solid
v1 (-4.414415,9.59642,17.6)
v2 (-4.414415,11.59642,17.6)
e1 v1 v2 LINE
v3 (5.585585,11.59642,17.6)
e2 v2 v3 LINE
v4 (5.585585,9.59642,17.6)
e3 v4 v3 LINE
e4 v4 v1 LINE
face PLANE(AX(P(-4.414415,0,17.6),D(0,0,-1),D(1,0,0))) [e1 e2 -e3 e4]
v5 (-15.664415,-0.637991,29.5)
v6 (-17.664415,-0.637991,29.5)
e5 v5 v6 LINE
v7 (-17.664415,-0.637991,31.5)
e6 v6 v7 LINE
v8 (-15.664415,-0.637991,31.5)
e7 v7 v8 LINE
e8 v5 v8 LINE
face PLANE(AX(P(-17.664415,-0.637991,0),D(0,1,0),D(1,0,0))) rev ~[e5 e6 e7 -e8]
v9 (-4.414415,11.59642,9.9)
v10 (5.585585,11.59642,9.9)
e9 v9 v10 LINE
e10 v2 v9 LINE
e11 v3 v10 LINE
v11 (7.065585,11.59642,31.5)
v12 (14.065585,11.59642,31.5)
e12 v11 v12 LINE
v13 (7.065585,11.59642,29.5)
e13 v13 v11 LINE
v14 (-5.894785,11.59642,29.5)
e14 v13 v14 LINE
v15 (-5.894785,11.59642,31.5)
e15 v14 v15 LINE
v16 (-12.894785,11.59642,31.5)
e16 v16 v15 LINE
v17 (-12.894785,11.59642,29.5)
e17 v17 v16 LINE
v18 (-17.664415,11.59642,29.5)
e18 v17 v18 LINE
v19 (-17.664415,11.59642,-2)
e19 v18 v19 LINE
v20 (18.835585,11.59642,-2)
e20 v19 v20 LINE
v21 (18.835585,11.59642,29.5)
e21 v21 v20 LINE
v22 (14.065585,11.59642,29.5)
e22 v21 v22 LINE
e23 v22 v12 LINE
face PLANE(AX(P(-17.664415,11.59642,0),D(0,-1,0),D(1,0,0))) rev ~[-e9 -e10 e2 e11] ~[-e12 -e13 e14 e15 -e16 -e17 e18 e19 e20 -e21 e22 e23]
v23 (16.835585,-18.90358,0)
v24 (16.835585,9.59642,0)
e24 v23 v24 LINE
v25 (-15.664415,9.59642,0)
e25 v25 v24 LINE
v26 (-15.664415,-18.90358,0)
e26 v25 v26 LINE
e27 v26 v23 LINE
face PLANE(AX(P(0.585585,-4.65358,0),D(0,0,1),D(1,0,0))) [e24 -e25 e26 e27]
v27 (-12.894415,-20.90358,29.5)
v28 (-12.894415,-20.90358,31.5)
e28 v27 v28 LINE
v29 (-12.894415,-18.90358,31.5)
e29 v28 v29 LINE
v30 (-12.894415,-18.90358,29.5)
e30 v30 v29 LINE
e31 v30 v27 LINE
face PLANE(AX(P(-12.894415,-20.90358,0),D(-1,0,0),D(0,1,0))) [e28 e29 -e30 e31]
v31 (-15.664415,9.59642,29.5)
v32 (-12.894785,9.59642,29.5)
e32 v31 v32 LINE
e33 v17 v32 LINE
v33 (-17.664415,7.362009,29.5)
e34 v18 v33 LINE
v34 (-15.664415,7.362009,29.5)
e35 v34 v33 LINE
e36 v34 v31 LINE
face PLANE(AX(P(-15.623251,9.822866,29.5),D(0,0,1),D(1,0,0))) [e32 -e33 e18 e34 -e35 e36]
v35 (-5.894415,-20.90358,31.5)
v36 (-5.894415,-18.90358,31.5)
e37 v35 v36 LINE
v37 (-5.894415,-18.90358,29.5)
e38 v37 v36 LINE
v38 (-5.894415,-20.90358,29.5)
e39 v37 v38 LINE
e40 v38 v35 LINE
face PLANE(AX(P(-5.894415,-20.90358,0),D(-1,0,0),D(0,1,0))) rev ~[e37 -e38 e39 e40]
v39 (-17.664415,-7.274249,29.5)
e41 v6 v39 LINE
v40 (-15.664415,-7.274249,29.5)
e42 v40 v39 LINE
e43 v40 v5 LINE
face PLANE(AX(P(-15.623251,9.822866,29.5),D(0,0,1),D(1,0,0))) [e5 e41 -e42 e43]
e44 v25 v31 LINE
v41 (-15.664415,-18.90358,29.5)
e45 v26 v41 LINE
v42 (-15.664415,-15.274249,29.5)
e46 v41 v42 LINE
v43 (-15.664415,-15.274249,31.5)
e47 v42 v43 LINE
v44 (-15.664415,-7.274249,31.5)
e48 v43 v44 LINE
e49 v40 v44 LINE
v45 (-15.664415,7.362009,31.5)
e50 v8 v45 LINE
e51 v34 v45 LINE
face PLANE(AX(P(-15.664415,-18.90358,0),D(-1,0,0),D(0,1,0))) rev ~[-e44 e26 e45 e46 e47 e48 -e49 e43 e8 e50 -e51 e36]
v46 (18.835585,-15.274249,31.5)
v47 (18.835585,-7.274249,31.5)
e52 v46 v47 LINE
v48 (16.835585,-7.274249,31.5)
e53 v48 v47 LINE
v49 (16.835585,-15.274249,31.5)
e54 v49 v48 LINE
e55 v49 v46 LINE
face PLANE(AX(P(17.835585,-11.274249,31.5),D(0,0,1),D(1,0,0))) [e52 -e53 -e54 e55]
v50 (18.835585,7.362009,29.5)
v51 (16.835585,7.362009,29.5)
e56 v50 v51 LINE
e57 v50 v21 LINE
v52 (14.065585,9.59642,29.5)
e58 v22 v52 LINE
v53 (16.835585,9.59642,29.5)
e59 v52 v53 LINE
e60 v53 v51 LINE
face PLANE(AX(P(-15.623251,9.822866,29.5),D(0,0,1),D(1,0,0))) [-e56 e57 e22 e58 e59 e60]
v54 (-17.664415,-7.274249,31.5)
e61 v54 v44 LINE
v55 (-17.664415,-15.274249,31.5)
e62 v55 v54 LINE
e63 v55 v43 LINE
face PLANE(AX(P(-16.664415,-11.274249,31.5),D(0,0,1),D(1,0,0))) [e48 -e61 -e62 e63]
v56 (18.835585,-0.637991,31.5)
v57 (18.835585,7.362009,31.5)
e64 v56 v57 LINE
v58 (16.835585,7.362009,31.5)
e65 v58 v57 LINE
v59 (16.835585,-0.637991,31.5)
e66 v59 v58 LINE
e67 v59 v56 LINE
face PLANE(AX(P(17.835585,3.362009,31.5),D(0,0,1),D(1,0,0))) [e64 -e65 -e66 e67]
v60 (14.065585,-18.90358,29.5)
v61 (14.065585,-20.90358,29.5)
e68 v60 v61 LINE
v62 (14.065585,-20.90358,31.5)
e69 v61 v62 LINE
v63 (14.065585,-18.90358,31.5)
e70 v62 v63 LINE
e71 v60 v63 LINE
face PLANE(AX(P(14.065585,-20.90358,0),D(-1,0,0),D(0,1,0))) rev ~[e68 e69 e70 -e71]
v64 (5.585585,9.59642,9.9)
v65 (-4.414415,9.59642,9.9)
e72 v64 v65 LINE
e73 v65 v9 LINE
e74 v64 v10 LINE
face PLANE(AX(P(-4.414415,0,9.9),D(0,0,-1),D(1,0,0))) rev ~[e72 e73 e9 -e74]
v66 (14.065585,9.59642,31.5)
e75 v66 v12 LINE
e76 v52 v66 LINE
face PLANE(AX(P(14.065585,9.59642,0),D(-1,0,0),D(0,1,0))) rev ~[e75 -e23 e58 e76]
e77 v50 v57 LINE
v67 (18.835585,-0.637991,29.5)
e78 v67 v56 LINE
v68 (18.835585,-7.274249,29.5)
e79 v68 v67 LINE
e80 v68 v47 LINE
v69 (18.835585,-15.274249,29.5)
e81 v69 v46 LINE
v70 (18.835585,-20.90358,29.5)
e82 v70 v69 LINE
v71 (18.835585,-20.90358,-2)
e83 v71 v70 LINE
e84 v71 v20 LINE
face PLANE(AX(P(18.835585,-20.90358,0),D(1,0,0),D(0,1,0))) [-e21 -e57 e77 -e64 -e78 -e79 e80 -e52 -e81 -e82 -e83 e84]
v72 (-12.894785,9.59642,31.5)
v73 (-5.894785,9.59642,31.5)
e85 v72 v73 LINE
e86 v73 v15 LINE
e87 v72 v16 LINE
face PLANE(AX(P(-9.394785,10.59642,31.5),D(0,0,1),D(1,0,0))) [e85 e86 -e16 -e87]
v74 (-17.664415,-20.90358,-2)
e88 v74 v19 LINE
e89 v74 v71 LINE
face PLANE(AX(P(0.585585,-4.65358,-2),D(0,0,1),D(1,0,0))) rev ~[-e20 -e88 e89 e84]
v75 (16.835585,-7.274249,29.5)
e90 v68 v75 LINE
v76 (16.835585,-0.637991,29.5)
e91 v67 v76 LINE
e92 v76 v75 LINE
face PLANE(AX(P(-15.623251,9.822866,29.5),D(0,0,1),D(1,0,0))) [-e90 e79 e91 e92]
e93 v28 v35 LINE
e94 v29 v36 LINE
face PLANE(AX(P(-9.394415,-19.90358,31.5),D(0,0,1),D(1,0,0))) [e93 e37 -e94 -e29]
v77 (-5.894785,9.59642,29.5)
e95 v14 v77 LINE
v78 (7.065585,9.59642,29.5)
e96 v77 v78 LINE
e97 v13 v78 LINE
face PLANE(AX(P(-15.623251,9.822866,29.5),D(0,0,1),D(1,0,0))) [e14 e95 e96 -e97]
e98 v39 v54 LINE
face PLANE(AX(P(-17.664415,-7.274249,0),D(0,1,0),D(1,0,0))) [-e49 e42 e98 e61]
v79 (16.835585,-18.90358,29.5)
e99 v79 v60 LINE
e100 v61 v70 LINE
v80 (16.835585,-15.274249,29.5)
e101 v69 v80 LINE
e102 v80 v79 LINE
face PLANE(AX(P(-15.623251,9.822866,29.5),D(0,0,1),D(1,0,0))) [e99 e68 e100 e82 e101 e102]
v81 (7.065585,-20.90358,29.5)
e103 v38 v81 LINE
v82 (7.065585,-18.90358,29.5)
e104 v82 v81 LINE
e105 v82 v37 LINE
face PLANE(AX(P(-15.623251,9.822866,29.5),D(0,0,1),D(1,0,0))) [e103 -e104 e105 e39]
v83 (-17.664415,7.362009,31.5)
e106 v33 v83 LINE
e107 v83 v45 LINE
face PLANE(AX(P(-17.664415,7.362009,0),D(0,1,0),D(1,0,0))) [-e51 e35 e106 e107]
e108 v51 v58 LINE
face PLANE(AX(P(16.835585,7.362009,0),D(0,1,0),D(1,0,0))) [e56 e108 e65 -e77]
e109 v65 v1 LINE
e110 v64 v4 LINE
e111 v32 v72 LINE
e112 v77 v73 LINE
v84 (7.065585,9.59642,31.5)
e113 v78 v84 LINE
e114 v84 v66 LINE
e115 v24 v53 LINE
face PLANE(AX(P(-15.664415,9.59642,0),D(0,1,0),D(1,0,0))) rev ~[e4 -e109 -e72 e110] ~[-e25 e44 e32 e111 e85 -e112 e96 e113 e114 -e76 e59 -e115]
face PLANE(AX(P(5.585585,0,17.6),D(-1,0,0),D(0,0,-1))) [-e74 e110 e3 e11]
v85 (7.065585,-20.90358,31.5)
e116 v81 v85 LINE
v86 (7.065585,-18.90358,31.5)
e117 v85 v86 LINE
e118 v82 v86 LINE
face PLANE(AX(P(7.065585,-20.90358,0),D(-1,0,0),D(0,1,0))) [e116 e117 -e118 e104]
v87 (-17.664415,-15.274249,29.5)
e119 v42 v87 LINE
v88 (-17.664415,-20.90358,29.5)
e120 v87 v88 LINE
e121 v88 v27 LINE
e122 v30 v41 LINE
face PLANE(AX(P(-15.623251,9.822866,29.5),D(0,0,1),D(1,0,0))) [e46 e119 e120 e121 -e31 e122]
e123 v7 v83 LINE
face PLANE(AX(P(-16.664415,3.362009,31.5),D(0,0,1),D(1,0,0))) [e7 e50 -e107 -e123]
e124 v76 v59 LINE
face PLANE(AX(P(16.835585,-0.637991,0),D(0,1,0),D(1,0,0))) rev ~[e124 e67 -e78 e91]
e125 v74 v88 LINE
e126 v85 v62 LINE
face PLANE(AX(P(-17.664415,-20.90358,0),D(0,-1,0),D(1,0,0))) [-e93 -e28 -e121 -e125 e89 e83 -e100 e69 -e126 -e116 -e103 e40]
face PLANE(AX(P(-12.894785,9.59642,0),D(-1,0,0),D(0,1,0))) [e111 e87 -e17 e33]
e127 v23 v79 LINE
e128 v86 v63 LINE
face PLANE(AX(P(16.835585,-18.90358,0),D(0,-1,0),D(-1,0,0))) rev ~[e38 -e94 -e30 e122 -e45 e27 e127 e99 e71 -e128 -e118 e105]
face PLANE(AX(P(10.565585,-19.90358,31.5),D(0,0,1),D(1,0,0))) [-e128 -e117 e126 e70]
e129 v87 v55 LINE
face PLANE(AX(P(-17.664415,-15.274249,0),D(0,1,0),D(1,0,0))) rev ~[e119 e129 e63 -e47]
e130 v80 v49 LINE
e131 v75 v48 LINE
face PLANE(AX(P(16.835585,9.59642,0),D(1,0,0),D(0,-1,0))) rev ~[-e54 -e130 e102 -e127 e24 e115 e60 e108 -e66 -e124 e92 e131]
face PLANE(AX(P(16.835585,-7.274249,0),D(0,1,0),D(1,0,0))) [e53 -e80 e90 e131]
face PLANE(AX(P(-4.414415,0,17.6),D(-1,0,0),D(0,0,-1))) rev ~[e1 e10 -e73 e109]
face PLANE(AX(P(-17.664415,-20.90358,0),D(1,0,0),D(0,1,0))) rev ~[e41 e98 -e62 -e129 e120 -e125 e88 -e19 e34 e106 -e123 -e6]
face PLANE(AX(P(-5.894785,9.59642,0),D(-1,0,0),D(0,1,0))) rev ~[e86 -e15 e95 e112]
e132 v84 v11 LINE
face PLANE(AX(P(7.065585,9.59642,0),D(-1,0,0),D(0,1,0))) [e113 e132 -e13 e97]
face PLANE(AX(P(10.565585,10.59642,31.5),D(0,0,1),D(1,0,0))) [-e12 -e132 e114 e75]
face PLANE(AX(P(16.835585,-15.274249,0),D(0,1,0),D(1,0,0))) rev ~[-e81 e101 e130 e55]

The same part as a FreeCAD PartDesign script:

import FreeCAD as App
import Part
import Sketcher


def add_polygon(sketch, points):
    """Adds a closed chain of lines whose ends are joined by coincident constraints."""
    first, n = sketch.GeometryCount, len(points)
    for a, b in zip(points, points[1:] + points[:1]):
        sketch.addGeometry(Part.LineSegment(App.Vector(*a, 0), App.Vector(*b, 0)), False)
    for i in range(n):
        sketch.addConstraint(Sketcher.Constraint("Coincident", first + i, 2, first + (i + 1) % n, 1))

doc = App.newDocument("Part")
params = doc.addObject("Spreadsheet::Sheet", "Params")
for row, (alias, value) in enumerate([
    ("sketch1_width", "36.5 mm"),
    ("sketch1_width2", "32.5 mm"),
    ("sketch1_height", "28.5 mm"),
    ("pad1_length", "29.5 mm"),
    ("sketch2_width", "7 mm"),
    ("sketch2_width2", "2 mm"),
    ("sketch2_height", "8 mm"),
    ("pad2_length", "31.5 mm"),
    ("sketch3_width", "36.5 mm"),
    ("sketch3_height", "32.5 mm"),
    ("pad3_length", "2 mm"),
    ("sketch4_width", "10 mm"),
    ("sketch4_height", "7.7 mm"),
], start=1):
    params.set(f"A{row}", alias)
    params.set(f"B{row}", "=" + value)
    params.setAlias(f"B{row}", alias)

body = doc.addObject("PartDesign::Body", "Body")

# Sketch on XY plane
sketch1 = body.newObject("Sketcher::SketchObject", "Sketch")
sketch1.AttachmentSupport = (doc.getObject("XY_Plane"), [""])
sketch1.MapMode = "FlatFace"
add_polygon(sketch1, [(-18, -21), (19, -21), (19, 12), (-18, 12)])  # lines 0-3
add_polygon(sketch1, [(-16, 10), (17, 10), (17, -19), (-16, -19)])  # lines 4-7
sketch1.addConstraint(Sketcher.Constraint("Horizontal", 0))
sketch1.addConstraint(Sketcher.Constraint("Vertical", 1))
sketch1.addConstraint(Sketcher.Constraint("Horizontal", 2))
sketch1.addConstraint(Sketcher.Constraint("Vertical", 3))
sketch1.addConstraint(Sketcher.Constraint("Horizontal", 4))
sketch1.addConstraint(Sketcher.Constraint("Vertical", 5))
sketch1.addConstraint(Sketcher.Constraint("Horizontal", 6))
sketch1.addConstraint(Sketcher.Constraint("Vertical", 7))
sketch1.addConstraint(Sketcher.Constraint("Equal", 6, 1))
sketch1.addConstraint(Sketcher.Constraint("DistanceX", 0, 1, 0, 2, 36.5))
sketch1.addConstraint(Sketcher.Constraint("DistanceX", 4, 1, 4, 2, 32.5))
sketch1.addConstraint(Sketcher.Constraint("DistanceY", 5, 2, 5, 1, 28.5))
sketch1.addConstraint(Sketcher.Constraint("DistanceX", 4, 2, 1, 2, 2.0))
sketch1.addConstraint(Sketcher.Constraint("DistanceY", 4, 2, 1, 2, 2.0))
sketch1.addConstraint(Sketcher.Constraint("DistanceY", 0, 2, -1, 1, 20.90358))
sketch1.addConstraint(Sketcher.Constraint("DistanceX", -1, 1, 0, 2, 18.835585))
sketch1.setExpression("Constraints[17]", "Params.sketch1_width")
sketch1.setExpression("Constraints[18]", "Params.sketch1_width2")
sketch1.setExpression("Constraints[19]", "Params.sketch1_height")
pad1 = body.newObject("PartDesign::Pad", "Pad")
pad1.Profile = sketch1
pad1.setExpression("Length", "Params.pad1_length")

# Sketch on XY plane
sketch2 = body.newObject("Sketcher::SketchObject", "Sketch001")
sketch2.AttachmentSupport = (doc.getObject("XY_Plane"), [""])
sketch2.MapMode = "FlatFace"
add_polygon(sketch2, [(-12.9, 11.6), (-12.9, 9.6), (-5.9, 9.6), (-5.9, 11.6)])  # lines 0-3
add_polygon(sketch2, [(7.1, 11.6), (7.1, 9.6), (14.1, 9.6), (14.1, 11.6)])  # lines 4-7
add_polygon(sketch2, [(16.8, 7.4), (16.8, -0.6), (18.8, -0.6), (18.8, 7.4)])  # lines 8-11
add_polygon(sketch2, [(16.8, -7.3), (16.8, -15.3), (18.8, -15.3), (18.8, -7.3)])  # lines 12-15
add_polygon(sketch2, [(7.1, -18.9), (7.1, -20.9), (14.1, -20.9), (14.1, -18.9)])  # lines 16-19
add_polygon(sketch2, [(-12.9, -18.9), (-12.9, -20.9), (-5.9, -20.9), (-5.9, -18.9)])  # lines 20-23
add_polygon(sketch2, [(-17.7, -7.3), (-17.7, -15.3), (-15.7, -15.3), (-15.7, -7.3)])  # lines 24-27
add_polygon(sketch2, [(-17.7, 7.4), (-17.7, -0.6), (-15.7, -0.6), (-15.7, 7.4)])  # lines 28-31
sketch2.addConstraint(Sketcher.Constraint("Vertical", 0))
sketch2.addConstraint(Sketcher.Constraint("Horizontal", 1))
sketch2.addConstraint(Sketcher.Constraint("Vertical", 2))
sketch2.addConstraint(Sketcher.Constraint("Horizontal", 3))
sketch2.addConstraint(Sketcher.Constraint("Vertical", 4))
sketch2.addConstraint(Sketcher.Constraint("Horizontal", 5))
sketch2.addConstraint(Sketcher.Constraint("Vertical", 6))
sketch2.addConstraint(Sketcher.Constraint("Horizontal", 7))
sketch2.addConstraint(Sketcher.Constraint("Vertical", 8))
sketch2.addConstraint(Sketcher.Constraint("Horizontal", 9))
sketch2.addConstraint(Sketcher.Constraint("Vertical", 10))
sketch2.addConstraint(Sketcher.Constraint("Horizontal", 11))
sketch2.addConstraint(Sketcher.Constraint("Vertical", 12))
sketch2.addConstraint(Sketcher.Constraint("Horizontal", 13))
sketch2.addConstraint(Sketcher.Constraint("Vertical", 14))
sketch2.addConstraint(Sketcher.Constraint("Horizontal", 15))
sketch2.addConstraint(Sketcher.Constraint("Vertical", 16))
sketch2.addConstraint(Sketcher.Constraint("Horizontal", 17))
sketch2.addConstraint(Sketcher.Constraint("Vertical", 18))
sketch2.addConstraint(Sketcher.Constraint("Horizontal", 19))
sketch2.addConstraint(Sketcher.Constraint("Vertical", 20))
sketch2.addConstraint(Sketcher.Constraint("Horizontal", 21))
sketch2.addConstraint(Sketcher.Constraint("Vertical", 22))
sketch2.addConstraint(Sketcher.Constraint("Horizontal", 23))
sketch2.addConstraint(Sketcher.Constraint("Vertical", 24))
sketch2.addConstraint(Sketcher.Constraint("Horizontal", 25))
sketch2.addConstraint(Sketcher.Constraint("Vertical", 26))
sketch2.addConstraint(Sketcher.Constraint("Horizontal", 27))
sketch2.addConstraint(Sketcher.Constraint("Vertical", 28))
sketch2.addConstraint(Sketcher.Constraint("Horizontal", 29))
sketch2.addConstraint(Sketcher.Constraint("Vertical", 30))
sketch2.addConstraint(Sketcher.Constraint("Horizontal", 31))
sketch2.addConstraint(Sketcher.Constraint("Horizontal", 1, 2, 4, 2))
sketch2.addConstraint(Sketcher.Constraint("Horizontal", 3, 2, 6, 2))
sketch2.addConstraint(Sketcher.Constraint("Horizontal", 17, 2, 20, 2))
sketch2.addConstraint(Sketcher.Constraint("Horizontal", 19, 2, 22, 2))
sketch2.addConstraint(Sketcher.Constraint("Horizontal", 13, 2, 24, 2))
sketch2.addConstraint(Sketcher.Constraint("Horizontal", 15, 2, 26, 2))
sketch2.addConstraint(Sketcher.Constraint("Horizontal", 9, 2, 28, 2))
sketch2.addConstraint(Sketcher.Constraint("Horizontal", 11, 2, 30, 2))
sketch2.addConstraint(Sketcher.Constraint("Vertical", 11, 2, 12, 2))
sketch2.addConstraint(Sketcher.Constraint("Vertical", 10, 2, 13, 2))
sketch2.addConstraint(Sketcher.Constraint("Vertical", 7, 2, 16, 2))
sketch2.addConstraint(Sketcher.Constraint("Vertical", 6, 2, 17, 2))
sketch2.addConstraint(Sketcher.Constraint("Vertical", 27, 2, 28, 2))
sketch2.addConstraint(Sketcher.Constraint("Vertical", 26, 2, 29, 2))
sketch2.addConstraint(Sketcher.Constraint("Equal", 3, 5))
sketch2.addConstraint(Sketcher.Constraint("Equal", 19, 21))
sketch2.addConstraint(Sketcher.Constraint("Equal", 15, 25))
sketch2.addConstraint(Sketcher.Constraint("Equal", 31, 0))
sketch2.addConstraint(Sketcher.Constraint("Equal", 10, 12))
sketch2.addConstraint(Sketcher.Constraint("Equal", 6, 16))
sketch2.addConstraint(Sketcher.Constraint("DistanceX", 1, 1, 1, 2, 7.0))
sketch2.addConstraint(Sketcher.Constraint("DistanceX", 9, 1, 9, 2, 2.0))
sketch2.addConstraint(Sketcher.Constraint("DistanceY", 8, 2, 8, 1, 8.0))
sketch2.addConstraint(Sketcher.Constraint("DistanceX", 5, 2, 8, 2, 2.77))
sketch2.addConstraint(Sketcher.Constraint("DistanceX", 20, 2, 16, 2, 19.96))
sketch2.addConstraint(Sketcher.Constraint("DistanceX", 24, 2, 23, 2, 4.77))
sketch2.addConstraint(Sketcher.Constraint("DistanceY", -1, 1, 0, 2, 9.59642))
sketch2.addConstraint(Sketcher.Constraint("DistanceY", 8, 2, -1, 1, 0.637991))
sketch2.addConstraint(Sketcher.Constraint("DistanceY", 12, 2, -1, 1, 15.274249))
sketch2.addConstraint(Sketcher.Constraint("DistanceY", 16, 2, -1, 1, 20.90358))
sketch2.addConstraint(Sketcher.Constraint("DistanceX", 1, 2, 4, 2, 12.96037))
sketch2.addConstraint(Sketcher.Constraint("DistanceX", 0, 2, -1, 1, 12.894785))
sketch2.setExpression("Constraints[84]", "Params.sketch2_width")
sketch2.setExpression("Constraints[85]", "Params.sketch2_width2")
sketch2.setExpression("Constraints[86]", "Params.sketch2_height")
pad2 = body.newObject("PartDesign::Pad", "Pad001")
pad2.Profile = sketch2
pad2.setExpression("Length", "Params.pad2_length")

# Sketch on XY plane
sketch3 = body.newObject("Sketcher::SketchObject", "Sketch002")
sketch3.AttachmentSupport = (doc.getObject("XY_Plane"), [""])
sketch3.MapMode = "FlatFace"
add_polygon(sketch3, [(-18, 12), (-18, -21), (19, -21), (19, 12)])  # lines 0-3
sketch3.addConstraint(Sketcher.Constraint("Vertical", 0))
sketch3.addConstraint(Sketcher.Constraint("Horizontal", 1))
sketch3.addConstraint(Sketcher.Constraint("Vertical", 2))
sketch3.addConstraint(Sketcher.Constraint("Horizontal", 3))
sketch3.addConstraint(Sketcher.Constraint("DistanceX", 1, 1, 1, 2, 36.5))
sketch3.addConstraint(Sketcher.Constraint("DistanceY", 0, 2, 0, 1, 32.5))
sketch3.addConstraint(Sketcher.Constraint("DistanceY", 0, 2, -1, 1, 20.90358))
sketch3.addConstraint(Sketcher.Constraint("DistanceX", 0, 2, -1, 1, 17.664415))
sketch3.setExpression("Constraints[8]", "Params.sketch3_width")
sketch3.setExpression("Constraints[9]", "Params.sketch3_height")
pad3 = body.newObject("PartDesign::Pad", "Pad002")
pad3.Profile = sketch3
pad3.setExpression("Length", "Params.pad3_length")
pad3.Reversed = True

# Sketch on XZ plane
sketch4 = body.newObject("Sketcher::SketchObject", "Sketch003")
sketch4.AttachmentSupport = (doc.getObject("XZ_Plane"), [""])
sketch4.MapMode = "FlatFace"
add_polygon(sketch4, [(-4, 10), (-4, 18), (6, 18), (6, 10)])  # lines 0-3
sketch4.addConstraint(Sketcher.Constraint("Vertical", 0))
sketch4.addConstraint(Sketcher.Constraint("Horizontal", 1))
sketch4.addConstraint(Sketcher.Constraint("Vertical", 2))
sketch4.addConstraint(Sketcher.Constraint("Horizontal", 3))
sketch4.addConstraint(Sketcher.Constraint("DistanceX", 1, 1, 1, 2, 10.0))
sketch4.addConstraint(Sketcher.Constraint("DistanceY", 0, 1, 0, 2, 7.7))
sketch4.addConstraint(Sketcher.Constraint("DistanceY", -1, 1, 0, 2, 17.6))
sketch4.addConstraint(Sketcher.Constraint("DistanceX", 0, 2, -1, 1, 4.414415))
sketch4.setExpression("Constraints[8]", "Params.sketch4_width")
sketch4.setExpression("Constraints[9]", "Params.sketch4_height")
pocket1 = body.newObject("PartDesign::Pocket", "Pocket")
pocket1.Profile = sketch4
pocket1.Type = "ThroughAll"

doc.recompute()
